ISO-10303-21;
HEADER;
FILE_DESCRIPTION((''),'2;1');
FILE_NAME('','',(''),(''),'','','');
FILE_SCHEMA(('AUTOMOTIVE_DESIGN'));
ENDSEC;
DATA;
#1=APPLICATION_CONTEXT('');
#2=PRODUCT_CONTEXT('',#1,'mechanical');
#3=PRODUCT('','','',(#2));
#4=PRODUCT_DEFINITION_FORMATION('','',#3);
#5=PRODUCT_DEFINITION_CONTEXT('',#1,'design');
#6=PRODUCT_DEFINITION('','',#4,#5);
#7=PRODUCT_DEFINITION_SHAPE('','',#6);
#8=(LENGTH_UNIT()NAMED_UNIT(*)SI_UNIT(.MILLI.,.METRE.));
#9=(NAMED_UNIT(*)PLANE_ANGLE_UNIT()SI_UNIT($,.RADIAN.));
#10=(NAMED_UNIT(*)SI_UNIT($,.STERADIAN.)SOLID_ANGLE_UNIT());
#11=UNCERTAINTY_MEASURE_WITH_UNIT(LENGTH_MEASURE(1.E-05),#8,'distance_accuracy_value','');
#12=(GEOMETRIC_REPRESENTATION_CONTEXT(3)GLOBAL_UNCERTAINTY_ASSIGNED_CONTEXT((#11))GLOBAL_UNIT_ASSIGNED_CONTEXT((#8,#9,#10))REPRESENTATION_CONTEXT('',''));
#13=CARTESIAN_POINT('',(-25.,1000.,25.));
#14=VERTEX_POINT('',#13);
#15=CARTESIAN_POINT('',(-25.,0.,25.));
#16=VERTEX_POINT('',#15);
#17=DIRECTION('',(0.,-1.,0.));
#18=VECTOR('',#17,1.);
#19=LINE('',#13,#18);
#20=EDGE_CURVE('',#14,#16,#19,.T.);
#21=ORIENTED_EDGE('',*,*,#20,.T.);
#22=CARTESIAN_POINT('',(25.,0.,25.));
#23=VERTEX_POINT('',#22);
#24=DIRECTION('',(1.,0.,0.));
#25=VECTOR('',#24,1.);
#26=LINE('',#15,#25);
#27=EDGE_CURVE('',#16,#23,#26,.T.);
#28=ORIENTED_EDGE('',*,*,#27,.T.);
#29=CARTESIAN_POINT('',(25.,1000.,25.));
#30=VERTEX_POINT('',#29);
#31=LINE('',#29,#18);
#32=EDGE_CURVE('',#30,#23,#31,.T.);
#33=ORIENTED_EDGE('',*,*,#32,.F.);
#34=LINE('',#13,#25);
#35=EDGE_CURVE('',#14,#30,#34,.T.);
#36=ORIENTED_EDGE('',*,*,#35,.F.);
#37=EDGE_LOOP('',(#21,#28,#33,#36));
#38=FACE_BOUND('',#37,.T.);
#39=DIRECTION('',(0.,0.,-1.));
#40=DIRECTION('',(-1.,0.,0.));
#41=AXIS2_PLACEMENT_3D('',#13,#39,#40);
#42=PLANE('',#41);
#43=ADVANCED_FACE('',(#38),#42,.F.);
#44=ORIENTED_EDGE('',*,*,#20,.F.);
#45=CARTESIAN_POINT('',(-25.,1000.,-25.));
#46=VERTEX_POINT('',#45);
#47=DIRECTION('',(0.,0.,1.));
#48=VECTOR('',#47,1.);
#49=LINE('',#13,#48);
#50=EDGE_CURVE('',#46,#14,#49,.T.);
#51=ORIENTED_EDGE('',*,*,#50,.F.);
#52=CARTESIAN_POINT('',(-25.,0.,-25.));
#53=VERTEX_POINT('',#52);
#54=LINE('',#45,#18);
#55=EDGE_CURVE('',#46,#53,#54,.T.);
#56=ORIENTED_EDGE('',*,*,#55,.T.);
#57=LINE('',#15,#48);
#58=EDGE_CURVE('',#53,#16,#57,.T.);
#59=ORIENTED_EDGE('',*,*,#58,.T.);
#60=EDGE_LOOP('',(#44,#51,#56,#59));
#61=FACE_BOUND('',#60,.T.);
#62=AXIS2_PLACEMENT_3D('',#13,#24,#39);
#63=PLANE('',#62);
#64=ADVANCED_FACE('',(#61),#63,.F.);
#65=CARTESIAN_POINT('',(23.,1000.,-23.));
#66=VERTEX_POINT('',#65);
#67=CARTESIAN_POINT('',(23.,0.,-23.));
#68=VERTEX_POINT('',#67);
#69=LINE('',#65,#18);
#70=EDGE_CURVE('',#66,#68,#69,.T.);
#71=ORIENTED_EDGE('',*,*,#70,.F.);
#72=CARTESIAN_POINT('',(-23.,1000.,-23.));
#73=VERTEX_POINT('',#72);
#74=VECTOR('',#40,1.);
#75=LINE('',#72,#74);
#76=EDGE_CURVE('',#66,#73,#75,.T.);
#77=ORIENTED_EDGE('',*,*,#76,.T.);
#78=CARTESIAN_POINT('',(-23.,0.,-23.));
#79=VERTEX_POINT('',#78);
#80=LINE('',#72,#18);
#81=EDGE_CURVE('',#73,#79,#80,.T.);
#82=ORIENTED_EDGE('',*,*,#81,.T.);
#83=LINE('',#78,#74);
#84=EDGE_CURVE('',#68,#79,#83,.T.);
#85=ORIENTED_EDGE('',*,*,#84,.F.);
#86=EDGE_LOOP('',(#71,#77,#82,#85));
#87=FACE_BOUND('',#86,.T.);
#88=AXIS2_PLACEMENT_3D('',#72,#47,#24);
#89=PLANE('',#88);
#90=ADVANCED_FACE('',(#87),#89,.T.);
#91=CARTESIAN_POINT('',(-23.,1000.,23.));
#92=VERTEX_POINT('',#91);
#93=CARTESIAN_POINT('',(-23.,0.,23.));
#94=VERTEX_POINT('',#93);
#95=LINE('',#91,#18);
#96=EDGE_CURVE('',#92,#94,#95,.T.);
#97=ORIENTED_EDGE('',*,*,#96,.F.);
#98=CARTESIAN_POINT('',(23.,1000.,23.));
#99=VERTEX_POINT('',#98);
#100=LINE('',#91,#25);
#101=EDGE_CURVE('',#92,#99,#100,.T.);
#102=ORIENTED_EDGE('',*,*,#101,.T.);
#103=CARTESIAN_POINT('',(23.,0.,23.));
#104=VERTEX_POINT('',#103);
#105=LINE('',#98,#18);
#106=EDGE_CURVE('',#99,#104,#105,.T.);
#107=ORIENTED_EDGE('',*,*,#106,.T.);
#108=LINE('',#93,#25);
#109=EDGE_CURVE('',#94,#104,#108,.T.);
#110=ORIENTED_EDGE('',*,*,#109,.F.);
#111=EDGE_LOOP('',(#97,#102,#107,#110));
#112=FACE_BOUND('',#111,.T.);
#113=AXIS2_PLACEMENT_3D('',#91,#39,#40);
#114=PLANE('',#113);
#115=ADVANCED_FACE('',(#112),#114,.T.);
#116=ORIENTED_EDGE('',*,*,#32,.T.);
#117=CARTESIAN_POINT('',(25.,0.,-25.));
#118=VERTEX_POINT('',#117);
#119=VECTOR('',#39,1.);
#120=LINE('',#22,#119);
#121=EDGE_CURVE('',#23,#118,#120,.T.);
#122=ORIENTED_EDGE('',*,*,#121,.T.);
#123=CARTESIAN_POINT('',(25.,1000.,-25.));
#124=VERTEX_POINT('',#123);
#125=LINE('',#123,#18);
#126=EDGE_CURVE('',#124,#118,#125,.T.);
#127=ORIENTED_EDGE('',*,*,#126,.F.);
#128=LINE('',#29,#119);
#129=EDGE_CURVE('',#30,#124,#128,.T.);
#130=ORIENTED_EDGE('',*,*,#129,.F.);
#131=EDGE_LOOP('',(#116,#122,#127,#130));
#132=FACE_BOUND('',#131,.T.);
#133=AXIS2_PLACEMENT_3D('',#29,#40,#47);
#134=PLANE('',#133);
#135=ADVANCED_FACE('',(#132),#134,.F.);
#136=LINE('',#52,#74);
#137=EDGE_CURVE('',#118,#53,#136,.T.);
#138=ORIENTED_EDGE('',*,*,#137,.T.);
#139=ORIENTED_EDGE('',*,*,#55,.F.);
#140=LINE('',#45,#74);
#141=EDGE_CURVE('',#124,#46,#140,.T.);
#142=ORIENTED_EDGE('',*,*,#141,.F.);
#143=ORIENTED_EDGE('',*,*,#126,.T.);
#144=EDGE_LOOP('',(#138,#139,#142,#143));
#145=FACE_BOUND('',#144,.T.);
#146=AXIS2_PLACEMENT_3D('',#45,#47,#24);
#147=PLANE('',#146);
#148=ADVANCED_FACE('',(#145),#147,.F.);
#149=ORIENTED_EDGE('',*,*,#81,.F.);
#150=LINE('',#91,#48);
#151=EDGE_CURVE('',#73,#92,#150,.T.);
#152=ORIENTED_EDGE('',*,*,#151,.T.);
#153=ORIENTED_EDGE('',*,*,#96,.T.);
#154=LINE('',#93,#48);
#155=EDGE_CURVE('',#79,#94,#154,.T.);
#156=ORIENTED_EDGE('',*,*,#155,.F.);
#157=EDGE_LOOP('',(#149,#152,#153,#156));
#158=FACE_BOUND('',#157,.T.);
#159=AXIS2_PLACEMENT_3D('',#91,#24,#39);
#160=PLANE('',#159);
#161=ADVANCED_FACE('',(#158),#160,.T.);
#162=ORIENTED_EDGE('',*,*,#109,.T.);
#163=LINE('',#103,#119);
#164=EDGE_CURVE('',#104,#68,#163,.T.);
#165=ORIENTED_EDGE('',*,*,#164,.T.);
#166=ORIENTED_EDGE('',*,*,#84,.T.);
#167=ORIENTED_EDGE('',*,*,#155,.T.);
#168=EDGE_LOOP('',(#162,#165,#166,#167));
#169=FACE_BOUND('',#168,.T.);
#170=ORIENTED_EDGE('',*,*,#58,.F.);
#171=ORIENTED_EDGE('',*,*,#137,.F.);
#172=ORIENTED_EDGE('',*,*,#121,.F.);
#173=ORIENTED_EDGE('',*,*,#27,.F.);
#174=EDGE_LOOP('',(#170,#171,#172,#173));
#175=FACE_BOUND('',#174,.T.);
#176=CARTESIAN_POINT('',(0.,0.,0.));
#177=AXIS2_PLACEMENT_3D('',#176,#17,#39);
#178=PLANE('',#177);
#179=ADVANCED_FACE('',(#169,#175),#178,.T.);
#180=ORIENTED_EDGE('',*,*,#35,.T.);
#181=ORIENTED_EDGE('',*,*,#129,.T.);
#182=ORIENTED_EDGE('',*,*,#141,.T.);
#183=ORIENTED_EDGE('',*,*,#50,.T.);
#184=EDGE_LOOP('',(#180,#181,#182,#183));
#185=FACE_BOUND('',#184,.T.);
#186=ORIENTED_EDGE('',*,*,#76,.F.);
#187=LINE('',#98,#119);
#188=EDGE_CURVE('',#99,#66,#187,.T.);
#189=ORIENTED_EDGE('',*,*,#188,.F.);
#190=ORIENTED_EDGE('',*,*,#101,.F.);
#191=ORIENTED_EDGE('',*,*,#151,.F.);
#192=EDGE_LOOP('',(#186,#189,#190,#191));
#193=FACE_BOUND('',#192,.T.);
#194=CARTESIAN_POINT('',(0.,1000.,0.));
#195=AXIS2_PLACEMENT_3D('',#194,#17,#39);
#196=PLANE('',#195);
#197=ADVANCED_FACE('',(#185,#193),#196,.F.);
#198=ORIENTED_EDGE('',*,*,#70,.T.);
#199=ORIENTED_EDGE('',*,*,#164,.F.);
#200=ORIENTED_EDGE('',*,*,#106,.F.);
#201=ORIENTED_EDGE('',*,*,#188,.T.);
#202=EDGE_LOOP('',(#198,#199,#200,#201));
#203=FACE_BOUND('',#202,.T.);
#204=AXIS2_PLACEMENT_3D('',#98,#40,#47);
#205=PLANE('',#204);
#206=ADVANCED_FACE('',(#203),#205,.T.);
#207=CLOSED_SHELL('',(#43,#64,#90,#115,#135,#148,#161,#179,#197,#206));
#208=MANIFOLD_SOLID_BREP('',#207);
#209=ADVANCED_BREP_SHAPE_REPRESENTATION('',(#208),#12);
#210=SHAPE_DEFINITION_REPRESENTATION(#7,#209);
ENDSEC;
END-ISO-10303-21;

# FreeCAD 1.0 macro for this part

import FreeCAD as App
import Part
import Sketcher
from FreeCAD import Vector
Q = App.Units.Quantity

doc = App.newDocument("Part")
body = doc.addObject("PartDesign::Body", "Body")

# Sketch on XZ plane
sketch1 = body.newObject("Sketcher::SketchObject", "Sketch")
sketch1.AttachmentSupport = (doc.getObject("XZ_Plane"), [""])
sketch1.MapMode = "FlatFace"
sketch1.addGeometry([
    Part.LineSegment(Vector(-25, -25, 0), Vector(-25, 25, 0)),  # 0
    Part.LineSegment(Vector(-25, 25, 0), Vector(25, 25, 0)),  # 1
    Part.LineSegment(Vector(25, 25, 0), Vector(25, -25, 0)),  # 2
    Part.LineSegment(Vector(25, -25, 0), Vector(-25, -25, 0)),  # 3
    Part.LineSegment(Vector(23, 23, 0), Vector(-23, 23, 0)),  # 4
    Part.LineSegment(Vector(-23, 23, 0), Vector(-23, -23, 0)),  # 5
    Part.LineSegment(Vector(-23, -23, 0), Vector(23, -23, 0)),  # 6
    Part.LineSegment(Vector(23, -23, 0), Vector(23, 23, 0)),  # 7
], False)
sketch1.addConstraint([
    Sketcher.Constraint("Coincident", 0, 2, 1, 1),
    Sketcher.Constraint("Coincident", 1, 2, 2, 1),
    Sketcher.Constraint("Coincident", 2, 2, 3, 1),
    Sketcher.Constraint("Coincident", 3, 2, 0, 1),
    Sketcher.Constraint("Coincident", 4, 2, 5, 1),
    Sketcher.Constraint("Coincident", 5, 2, 6, 1),
    Sketcher.Constraint("Coincident", 6, 2, 7, 1),
    Sketcher.Constraint("Coincident", 7, 2, 4, 1),
    Sketcher.Constraint("Vertical", 0),
    Sketcher.Constraint("Horizontal", 1),
    Sketcher.Constraint("Vertical", 2),
    Sketcher.Constraint("Horizontal", 3),
    Sketcher.Constraint("Horizontal", 4),
    Sketcher.Constraint("Vertical", 5),
    Sketcher.Constraint("Horizontal", 6),
    Sketcher.Constraint("Vertical", 7),
    Sketcher.Constraint("Symmetric", 0, 2, 2, 2, -1, 1),
    Sketcher.Constraint("Symmetric", 4, 2, 6, 2, -1, 1),
    Sketcher.Constraint("Equal", 3, 0),
    Sketcher.Constraint("Equal", 6, 5),
    Sketcher.Constraint("DistanceX", 1, 1, 1, 2, Q("50 mm")),
    Sketcher.Constraint("DistanceX", 4, 2, 4, 1, Q("46 mm")),
])
pad1 = body.newObject("PartDesign::Pad", "Pad")
pad1.Profile = sketch1
pad1.Length = 1000
pad1.Reversed = True

doc.recompute()
